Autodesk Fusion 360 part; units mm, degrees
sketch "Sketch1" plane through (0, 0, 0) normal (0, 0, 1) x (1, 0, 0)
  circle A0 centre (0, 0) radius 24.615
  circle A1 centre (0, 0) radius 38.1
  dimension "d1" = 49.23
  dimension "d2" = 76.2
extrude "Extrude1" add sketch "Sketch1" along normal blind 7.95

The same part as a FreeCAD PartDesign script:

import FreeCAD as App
import Part
import Sketcher
from FreeCAD import Vector
Q = App.Units.Quantity

doc = App.newDocument("Part")
params = doc.addObject("Spreadsheet::Sheet", "Params")
for row, (alias, value) in enumerate([
    ("sketch1_diameter", "3 in"),
    ("pad1_length", "0.3129921 in"),
], start=1):
    params.set(f"A{row}", alias)
    params.set(f"B{row}", "=" + value)
    params.setAlias(f"B{row}", alias)

body = doc.addObject("PartDesign::Body", "Body")

# Sketch on XY plane
sketch1 = doc.addObject("Sketcher::SketchObject", "Sketch")
body.addObject(sketch1)
sketch1.AttachmentSupport = (doc.XY_Plane, [""])
sketch1.MapMode = "FlatFace"
sketch1.addGeometry(Part.Circle(Vector(0, 0, 0), Vector(0, 0, 1), 38.1), False)
sketch1.addGeometry(Part.Circle(Vector(0, 0, 0), Vector(0, 0, 1), 24.615), False)
sketch1.addConstraint(Sketcher.Constraint("Coincident", 0, 3, -1, 1))
sketch1.addConstraint(Sketcher.Constraint("Coincident", 1, 3, -1, 1))
sketch1.addConstraint(Sketcher.Constraint("Diameter", 0, Q("3 in")))
sketch1.addConstraint(Sketcher.Constraint("Diameter", 1, Q("1.9382 in")))
sketch1.setExpression("Constraints[2]", "Params.sketch1_diameter")
pad1 = doc.addObject("PartDesign::Pad", "Pad")
body.addObject(pad1)
pad1.Profile = sketch1
pad1.setExpression("Length", "Params.pad1_length")

doc.recompute()
